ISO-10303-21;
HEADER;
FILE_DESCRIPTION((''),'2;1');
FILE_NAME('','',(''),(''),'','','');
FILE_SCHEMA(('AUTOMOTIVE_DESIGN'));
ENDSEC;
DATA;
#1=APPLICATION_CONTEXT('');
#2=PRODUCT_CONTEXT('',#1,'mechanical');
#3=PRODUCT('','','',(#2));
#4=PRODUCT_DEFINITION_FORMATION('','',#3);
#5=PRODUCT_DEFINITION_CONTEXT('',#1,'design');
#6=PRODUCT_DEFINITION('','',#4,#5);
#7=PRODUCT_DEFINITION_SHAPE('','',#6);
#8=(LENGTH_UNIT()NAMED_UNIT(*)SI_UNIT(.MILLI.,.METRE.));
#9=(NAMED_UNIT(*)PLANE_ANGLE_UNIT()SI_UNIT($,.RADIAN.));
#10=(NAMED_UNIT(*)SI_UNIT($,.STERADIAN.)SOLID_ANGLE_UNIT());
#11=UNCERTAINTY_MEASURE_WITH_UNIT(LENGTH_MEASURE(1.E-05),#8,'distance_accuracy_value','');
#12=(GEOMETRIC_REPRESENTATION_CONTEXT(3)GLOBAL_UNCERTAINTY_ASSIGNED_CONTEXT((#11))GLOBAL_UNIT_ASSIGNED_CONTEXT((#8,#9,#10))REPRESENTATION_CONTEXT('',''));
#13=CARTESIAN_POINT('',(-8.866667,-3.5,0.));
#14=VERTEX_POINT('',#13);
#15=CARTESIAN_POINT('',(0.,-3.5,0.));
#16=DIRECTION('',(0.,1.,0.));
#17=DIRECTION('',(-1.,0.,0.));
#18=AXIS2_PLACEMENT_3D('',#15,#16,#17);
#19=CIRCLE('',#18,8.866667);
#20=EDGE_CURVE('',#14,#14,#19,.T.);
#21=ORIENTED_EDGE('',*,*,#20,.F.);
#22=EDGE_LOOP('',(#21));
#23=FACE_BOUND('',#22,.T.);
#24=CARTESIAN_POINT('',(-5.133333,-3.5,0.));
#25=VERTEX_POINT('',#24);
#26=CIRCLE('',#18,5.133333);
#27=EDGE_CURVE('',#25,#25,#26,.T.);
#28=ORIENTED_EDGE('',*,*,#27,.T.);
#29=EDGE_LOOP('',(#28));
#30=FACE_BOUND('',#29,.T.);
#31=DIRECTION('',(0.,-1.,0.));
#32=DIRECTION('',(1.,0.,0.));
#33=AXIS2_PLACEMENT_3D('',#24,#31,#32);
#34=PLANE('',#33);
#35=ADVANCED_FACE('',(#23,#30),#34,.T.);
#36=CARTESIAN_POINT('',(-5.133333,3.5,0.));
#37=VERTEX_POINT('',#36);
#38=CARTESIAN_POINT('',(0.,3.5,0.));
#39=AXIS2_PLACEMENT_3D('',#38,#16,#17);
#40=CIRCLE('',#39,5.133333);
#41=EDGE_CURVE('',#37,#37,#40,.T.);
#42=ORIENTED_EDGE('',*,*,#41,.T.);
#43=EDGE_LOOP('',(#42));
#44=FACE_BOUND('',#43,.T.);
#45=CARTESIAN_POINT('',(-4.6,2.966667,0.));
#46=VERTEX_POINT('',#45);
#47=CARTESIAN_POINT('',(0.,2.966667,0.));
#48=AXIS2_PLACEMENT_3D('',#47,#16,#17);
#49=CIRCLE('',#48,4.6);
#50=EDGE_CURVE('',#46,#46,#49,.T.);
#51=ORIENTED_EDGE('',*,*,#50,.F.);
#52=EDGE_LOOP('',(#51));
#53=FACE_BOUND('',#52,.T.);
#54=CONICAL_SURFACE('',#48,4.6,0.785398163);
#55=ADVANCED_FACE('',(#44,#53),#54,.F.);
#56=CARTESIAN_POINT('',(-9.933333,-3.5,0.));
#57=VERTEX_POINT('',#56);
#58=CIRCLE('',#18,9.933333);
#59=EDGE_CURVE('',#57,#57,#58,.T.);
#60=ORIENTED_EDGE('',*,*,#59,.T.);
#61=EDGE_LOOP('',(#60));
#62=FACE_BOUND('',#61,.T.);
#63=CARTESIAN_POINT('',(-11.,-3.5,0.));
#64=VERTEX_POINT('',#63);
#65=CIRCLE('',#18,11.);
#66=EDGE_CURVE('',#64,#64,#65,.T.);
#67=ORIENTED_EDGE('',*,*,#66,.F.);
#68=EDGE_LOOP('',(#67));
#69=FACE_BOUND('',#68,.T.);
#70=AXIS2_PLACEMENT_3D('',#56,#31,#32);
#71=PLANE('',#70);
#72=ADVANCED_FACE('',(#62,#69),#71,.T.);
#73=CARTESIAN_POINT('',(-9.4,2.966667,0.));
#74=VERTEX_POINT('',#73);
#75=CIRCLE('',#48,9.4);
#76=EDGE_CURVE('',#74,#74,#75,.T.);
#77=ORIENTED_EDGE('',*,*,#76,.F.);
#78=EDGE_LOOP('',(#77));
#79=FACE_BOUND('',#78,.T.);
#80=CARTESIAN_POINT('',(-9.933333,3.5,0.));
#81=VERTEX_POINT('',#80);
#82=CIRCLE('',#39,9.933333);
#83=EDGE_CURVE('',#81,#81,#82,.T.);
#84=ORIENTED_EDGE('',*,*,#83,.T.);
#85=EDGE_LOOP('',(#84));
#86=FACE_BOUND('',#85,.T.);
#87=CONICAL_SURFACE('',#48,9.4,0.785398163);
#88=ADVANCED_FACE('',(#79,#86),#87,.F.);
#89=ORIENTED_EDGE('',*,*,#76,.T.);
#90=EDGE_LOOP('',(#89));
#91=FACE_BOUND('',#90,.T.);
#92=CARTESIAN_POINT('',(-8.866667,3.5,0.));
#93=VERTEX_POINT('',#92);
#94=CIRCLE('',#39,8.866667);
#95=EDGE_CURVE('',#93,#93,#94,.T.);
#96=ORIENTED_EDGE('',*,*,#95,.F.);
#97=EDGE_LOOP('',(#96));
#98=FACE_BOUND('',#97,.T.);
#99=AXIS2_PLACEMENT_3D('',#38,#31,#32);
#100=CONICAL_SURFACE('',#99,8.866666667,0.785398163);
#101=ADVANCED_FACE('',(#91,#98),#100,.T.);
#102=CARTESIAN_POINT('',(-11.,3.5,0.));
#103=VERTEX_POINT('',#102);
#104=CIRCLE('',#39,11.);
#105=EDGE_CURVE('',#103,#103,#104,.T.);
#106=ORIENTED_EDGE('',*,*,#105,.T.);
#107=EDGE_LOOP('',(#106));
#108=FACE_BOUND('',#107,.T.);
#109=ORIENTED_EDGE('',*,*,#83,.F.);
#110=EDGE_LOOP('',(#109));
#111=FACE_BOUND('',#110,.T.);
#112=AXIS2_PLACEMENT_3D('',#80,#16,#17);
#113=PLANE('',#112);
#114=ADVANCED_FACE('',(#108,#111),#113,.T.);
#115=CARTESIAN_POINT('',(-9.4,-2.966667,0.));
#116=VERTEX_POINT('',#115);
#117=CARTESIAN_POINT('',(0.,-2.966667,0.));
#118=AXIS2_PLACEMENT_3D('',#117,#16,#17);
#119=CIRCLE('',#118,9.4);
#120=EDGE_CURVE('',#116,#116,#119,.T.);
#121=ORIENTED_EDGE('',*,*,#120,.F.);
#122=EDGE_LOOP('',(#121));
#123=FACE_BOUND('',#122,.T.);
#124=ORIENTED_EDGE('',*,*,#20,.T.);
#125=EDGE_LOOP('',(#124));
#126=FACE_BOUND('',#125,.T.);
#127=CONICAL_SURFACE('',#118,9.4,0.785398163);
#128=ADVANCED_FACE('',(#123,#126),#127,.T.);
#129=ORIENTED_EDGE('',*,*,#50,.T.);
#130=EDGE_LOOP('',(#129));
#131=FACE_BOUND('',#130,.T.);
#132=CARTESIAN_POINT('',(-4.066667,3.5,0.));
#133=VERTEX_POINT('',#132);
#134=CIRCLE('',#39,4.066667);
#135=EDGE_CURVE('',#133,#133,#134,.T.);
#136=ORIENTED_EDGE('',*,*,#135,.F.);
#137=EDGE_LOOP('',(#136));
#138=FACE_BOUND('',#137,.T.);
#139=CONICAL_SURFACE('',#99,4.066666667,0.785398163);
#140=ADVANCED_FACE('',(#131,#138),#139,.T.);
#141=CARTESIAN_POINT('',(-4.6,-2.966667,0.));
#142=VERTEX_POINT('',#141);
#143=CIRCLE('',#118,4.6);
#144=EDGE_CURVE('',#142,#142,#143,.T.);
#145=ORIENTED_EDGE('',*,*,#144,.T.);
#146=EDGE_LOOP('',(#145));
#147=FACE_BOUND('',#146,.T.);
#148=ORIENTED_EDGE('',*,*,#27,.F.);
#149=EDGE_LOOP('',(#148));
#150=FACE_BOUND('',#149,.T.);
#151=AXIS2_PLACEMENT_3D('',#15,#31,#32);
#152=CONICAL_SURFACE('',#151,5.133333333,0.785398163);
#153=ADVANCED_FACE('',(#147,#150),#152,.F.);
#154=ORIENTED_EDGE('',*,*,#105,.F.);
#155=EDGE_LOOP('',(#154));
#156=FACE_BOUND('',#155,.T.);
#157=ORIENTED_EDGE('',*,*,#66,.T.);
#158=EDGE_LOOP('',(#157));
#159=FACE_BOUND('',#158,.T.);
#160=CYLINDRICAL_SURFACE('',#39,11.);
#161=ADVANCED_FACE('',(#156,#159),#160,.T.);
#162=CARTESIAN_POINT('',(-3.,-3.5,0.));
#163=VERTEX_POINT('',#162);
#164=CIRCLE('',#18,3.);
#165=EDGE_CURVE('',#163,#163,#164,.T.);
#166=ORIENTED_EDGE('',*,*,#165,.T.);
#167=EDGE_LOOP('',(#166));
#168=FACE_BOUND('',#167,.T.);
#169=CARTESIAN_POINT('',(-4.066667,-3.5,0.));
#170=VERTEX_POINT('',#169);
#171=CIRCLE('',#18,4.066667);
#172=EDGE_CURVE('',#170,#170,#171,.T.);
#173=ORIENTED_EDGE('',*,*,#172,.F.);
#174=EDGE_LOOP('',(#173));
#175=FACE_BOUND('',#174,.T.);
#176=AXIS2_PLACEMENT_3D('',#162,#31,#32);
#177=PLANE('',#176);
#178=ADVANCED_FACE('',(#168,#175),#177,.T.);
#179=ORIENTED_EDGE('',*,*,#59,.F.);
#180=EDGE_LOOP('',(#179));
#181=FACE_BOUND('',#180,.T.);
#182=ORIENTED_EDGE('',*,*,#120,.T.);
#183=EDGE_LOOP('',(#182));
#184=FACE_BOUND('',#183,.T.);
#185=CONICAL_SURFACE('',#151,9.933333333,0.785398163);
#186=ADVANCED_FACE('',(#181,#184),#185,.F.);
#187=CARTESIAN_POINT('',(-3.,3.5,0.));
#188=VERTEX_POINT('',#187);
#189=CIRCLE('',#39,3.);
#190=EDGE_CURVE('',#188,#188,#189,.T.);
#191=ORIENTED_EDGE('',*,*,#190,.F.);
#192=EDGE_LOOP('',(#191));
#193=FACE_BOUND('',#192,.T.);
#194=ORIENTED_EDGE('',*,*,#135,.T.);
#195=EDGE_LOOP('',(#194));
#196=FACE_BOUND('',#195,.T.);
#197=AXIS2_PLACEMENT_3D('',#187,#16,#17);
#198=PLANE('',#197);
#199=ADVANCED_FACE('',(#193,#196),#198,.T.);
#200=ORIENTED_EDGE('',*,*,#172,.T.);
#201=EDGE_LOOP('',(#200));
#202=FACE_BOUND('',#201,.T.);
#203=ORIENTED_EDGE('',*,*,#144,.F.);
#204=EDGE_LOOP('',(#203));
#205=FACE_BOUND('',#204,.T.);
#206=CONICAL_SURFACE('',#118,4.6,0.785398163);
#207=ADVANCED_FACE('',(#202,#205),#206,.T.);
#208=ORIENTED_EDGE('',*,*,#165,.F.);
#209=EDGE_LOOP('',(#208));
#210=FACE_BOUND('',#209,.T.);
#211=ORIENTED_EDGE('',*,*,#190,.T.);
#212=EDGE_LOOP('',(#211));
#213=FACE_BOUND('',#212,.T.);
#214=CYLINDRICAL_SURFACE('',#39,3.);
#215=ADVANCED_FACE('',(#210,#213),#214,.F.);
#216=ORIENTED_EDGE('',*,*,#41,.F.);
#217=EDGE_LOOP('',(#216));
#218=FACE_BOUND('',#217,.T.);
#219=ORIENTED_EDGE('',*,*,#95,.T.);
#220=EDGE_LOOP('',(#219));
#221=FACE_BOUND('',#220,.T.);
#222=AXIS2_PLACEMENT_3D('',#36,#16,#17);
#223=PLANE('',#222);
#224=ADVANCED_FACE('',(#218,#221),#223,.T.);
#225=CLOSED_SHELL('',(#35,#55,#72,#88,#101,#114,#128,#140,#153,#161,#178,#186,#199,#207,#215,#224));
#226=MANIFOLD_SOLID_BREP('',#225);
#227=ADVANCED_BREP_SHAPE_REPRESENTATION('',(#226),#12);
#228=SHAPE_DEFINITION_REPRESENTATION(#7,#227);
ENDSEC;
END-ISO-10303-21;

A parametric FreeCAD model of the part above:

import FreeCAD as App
import Part
import Sketcher


def add_polygon(sketch, points):
    """Adds a closed chain of lines whose ends are joined by coincident constraints."""
    first, n = sketch.GeometryCount, len(points)
    for a, b in zip(points, points[1:] + points[:1]):
        sketch.addGeometry(Part.LineSegment(App.Vector(*a, 0), App.Vector(*b, 0)), False)
    for i in range(n):
        sketch.addConstraint(Sketcher.Constraint("Coincident", first + i, 2, first + (i + 1) % n, 1))

doc = App.newDocument("Part")
body = doc.addObject("PartDesign::Body", "Body")

# Sketch on XY plane
sketch1 = doc.addObject("Sketcher::SketchObject", "Sketch")
body.addObject(sketch1)
sketch1.AttachmentSupport = (doc.XY_Plane, [""])
sketch1.MapMode = "FlatFace"
add_polygon(sketch1, [(-3, 3.5), (-4.1, 3.5), (-4.6, 3), (-5.1, 3.5), (-8.9, 3.5), (-9.4, 3), (-9.9, 3.5), (-11, 3.5), (-11, -3.5), (-9.9, -3.5), (-9.4, -3), (-8.9, -3.5), (-5.1, -3.5), (-4.6, -3), (-4.1, -3.5), (-3, -3.5)])  # lines 0-15
sketch1.addConstraint([
    Sketcher.Constraint("Horizontal", 0),
    Sketcher.Constraint("Horizontal", 3),
    Sketcher.Constraint("Horizontal", 6),
    Sketcher.Constraint("Vertical", 7),
    Sketcher.Constraint("Horizontal", 8),
    Sketcher.Constraint("Horizontal", 11),
    Sketcher.Constraint("Horizontal", 14),
    Sketcher.Constraint("Vertical", 15),
    Sketcher.Constraint("Symmetric", 5, 2, 8, 2, -1),
    Sketcher.Constraint("Symmetric", 4, 2, 9, 2, -1),
    Sketcher.Constraint("Symmetric", 3, 2, 10, 2, -1),
    Sketcher.Constraint("Symmetric", 1, 2, 12, 2, -1),
    Sketcher.Constraint("Symmetric", 0, 2, 13, 2, -1),
    Sketcher.Constraint("Perpendicular", 1, 2),
    Sketcher.Constraint("Perpendicular", 2, 4),
    Sketcher.Constraint("Perpendicular", 4, 5),
    Sketcher.Constraint("Perpendicular", 5, 9),
    Sketcher.Constraint("Perpendicular", 10, 12),
    Sketcher.Constraint("Horizontal", 0, 2, 2, 2),
    Sketcher.Constraint("Horizontal", 1, 2, 4, 2),
    Sketcher.Constraint("Horizontal", 3, 2, 5, 2),
    Sketcher.Constraint("Equal", 0, 6),
    Sketcher.Constraint("DistanceY", 7, 2, 7, 1, 7.0),
    Sketcher.Constraint("DistanceX", 6, 2, -1, 1, 11.0),
    Sketcher.Constraint("DistanceX", 14, 2, -1, 1, 3.0),
    Sketcher.Constraint("DistanceX", 1, 2, -1, 1, 4.6),
    Sketcher.Constraint("DistanceX", 0, 2, 0, 1, 1.066667),
])
revolution = doc.addObject("PartDesign::Revolution", "Revolution")
body.addObject(revolution)
revolution.Profile = sketch1
revolution.ReferenceAxis = (sketch1, ["V_Axis"])
revolution.Angle = 360

doc.recompute()
